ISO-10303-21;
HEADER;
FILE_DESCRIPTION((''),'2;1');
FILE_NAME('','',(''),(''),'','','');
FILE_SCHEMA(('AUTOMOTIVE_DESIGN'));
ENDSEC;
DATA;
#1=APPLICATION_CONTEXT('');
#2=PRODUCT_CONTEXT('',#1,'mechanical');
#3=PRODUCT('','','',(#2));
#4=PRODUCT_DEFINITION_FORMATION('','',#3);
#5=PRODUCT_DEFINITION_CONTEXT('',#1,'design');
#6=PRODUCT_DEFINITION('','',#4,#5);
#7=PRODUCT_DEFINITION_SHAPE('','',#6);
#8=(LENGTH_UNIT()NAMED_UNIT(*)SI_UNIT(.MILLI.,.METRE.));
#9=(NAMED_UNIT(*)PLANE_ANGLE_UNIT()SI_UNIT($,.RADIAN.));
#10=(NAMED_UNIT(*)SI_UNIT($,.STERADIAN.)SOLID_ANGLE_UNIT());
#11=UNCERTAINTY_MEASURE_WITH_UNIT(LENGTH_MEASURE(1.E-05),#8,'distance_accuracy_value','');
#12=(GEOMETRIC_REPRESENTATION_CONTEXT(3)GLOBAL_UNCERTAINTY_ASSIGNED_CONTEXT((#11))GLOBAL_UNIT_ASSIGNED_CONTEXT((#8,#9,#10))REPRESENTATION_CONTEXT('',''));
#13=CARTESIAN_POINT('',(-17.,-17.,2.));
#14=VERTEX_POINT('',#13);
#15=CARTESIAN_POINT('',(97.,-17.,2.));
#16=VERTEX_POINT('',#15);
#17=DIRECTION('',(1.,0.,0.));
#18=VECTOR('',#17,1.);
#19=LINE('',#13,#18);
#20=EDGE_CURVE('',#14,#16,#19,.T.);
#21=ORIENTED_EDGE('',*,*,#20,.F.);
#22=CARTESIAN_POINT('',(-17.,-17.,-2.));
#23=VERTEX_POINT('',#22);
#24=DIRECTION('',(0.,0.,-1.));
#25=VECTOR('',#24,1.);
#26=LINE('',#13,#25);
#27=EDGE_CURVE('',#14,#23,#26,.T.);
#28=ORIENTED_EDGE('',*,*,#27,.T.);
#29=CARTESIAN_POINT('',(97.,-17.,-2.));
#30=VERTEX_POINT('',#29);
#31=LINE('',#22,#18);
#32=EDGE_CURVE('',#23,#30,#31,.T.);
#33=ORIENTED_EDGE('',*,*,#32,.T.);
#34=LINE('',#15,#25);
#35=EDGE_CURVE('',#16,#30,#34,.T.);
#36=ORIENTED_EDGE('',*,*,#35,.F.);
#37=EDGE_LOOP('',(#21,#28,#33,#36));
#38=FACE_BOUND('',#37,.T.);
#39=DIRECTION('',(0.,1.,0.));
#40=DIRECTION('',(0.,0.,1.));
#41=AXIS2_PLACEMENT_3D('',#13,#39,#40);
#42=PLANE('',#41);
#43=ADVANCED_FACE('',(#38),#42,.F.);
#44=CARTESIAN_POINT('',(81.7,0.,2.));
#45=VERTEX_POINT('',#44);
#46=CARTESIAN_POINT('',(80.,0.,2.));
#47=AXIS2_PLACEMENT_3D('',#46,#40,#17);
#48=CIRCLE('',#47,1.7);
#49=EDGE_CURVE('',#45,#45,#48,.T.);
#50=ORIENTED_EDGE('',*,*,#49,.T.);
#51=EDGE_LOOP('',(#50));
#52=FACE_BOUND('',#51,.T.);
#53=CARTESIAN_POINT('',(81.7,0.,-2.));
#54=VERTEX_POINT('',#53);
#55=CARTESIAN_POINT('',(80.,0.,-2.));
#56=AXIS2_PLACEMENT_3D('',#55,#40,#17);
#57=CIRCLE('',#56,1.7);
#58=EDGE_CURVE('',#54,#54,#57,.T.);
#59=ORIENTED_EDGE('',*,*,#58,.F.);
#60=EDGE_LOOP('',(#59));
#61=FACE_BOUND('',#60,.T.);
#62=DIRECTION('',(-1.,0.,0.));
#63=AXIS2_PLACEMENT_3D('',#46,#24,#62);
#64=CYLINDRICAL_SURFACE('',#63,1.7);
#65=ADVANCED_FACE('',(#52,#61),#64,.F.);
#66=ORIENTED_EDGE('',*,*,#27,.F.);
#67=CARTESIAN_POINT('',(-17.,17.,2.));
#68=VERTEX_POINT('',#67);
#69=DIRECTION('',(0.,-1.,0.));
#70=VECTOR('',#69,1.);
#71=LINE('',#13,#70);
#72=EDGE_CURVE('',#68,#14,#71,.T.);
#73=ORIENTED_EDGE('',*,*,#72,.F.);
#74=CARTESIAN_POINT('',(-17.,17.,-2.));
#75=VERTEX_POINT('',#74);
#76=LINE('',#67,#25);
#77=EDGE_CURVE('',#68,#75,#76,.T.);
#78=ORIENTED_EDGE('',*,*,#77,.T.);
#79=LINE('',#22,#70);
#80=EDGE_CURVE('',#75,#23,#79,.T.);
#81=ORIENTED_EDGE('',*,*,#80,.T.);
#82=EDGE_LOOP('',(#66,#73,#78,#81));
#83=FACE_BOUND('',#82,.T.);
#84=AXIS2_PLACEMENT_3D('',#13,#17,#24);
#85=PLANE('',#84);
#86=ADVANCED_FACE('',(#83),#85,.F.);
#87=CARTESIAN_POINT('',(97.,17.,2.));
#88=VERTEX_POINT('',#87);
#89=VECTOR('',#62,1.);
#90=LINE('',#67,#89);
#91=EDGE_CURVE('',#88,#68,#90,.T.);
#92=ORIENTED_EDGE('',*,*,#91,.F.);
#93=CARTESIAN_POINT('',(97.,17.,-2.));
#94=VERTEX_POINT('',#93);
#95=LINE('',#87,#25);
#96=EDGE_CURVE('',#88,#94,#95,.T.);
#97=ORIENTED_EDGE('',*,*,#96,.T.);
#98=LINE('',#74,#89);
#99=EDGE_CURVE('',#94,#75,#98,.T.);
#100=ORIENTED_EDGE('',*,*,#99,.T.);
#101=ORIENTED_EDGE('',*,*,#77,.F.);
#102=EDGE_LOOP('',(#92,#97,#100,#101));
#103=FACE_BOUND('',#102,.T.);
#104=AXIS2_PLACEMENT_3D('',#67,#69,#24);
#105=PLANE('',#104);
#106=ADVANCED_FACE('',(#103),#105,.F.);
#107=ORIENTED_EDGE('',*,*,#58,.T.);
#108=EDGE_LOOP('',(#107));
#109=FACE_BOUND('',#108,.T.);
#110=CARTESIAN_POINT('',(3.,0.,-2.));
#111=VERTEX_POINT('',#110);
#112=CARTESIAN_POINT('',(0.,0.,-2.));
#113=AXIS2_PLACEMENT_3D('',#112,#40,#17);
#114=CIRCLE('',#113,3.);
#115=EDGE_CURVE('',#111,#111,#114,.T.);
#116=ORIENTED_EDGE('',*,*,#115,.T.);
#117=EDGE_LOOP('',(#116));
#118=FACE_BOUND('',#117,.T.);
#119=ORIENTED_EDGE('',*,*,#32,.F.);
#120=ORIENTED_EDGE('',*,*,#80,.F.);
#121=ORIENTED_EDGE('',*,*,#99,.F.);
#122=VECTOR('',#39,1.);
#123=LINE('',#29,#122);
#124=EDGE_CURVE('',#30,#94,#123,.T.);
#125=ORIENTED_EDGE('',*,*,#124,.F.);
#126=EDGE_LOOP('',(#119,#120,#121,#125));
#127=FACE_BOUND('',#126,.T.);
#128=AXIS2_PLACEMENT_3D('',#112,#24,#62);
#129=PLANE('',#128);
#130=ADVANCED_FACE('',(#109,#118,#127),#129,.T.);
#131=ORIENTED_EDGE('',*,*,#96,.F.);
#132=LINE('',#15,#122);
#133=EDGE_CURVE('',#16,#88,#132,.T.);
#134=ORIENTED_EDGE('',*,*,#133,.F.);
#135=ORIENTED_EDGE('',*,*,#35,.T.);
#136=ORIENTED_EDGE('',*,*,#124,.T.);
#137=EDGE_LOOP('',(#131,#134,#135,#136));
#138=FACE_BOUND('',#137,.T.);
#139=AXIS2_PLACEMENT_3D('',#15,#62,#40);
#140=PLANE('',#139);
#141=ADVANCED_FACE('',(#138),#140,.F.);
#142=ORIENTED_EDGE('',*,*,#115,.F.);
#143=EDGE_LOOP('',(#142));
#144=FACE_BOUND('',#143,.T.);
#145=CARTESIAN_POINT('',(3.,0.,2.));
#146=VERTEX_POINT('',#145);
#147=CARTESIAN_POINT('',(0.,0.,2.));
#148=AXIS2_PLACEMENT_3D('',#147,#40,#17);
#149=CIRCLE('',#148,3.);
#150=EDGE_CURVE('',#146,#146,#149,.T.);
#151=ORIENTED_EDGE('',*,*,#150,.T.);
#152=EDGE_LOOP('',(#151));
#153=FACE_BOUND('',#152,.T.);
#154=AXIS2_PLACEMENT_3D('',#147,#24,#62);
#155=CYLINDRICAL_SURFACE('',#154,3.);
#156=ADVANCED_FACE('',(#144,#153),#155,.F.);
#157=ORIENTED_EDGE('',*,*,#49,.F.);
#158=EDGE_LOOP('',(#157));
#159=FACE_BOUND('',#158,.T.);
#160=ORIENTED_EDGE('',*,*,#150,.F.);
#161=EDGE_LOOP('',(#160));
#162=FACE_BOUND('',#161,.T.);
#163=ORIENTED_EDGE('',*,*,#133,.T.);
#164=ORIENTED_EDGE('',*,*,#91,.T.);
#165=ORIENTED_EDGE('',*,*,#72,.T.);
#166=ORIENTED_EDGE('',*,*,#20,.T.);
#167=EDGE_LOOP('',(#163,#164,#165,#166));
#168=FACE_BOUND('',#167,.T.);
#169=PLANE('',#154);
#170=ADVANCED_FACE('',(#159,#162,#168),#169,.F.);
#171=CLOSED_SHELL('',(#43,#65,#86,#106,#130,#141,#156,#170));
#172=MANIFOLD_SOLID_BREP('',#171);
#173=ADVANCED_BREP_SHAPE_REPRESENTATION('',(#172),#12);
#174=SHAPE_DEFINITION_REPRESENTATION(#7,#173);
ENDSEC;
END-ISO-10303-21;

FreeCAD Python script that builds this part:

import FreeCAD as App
import Part
import Sketcher
Q = App.Units.Quantity


def add_polygon(sketch, points):
    """Adds a closed chain of lines whose ends are joined by coincident constraints."""
    first, n = sketch.GeometryCount, len(points)
    for a, b in zip(points, points[1:] + points[:1]):
        sketch.addGeometry(Part.LineSegment(App.Vector(*a, 0), App.Vector(*b, 0)), False)
    for i in range(n):
        sketch.addConstraint(Sketcher.Constraint("Coincident", first + i, 2, first + (i + 1) % n, 1))

doc = App.newDocument("Part")
body = doc.addObject("PartDesign::Body", "Body")

# Sketch on XY plane
sketch1 = body.newObject("Sketcher::SketchObject", "Sketch")
sketch1.AttachmentSupport = (doc.getObject("XY_Plane"), [""])
sketch1.MapMode = "FlatFace"
add_polygon(sketch1, [(-17, 17), (-17, -17), (97, -17), (97, 17)])  # lines 0-3
sketch1.addGeometry(Part.Circle(App.Vector(0, 0, 0), App.Vector(0, 0, 1), 3), False)  # 4
sketch1.addGeometry(Part.Circle(App.Vector(80, 0, 0), App.Vector(0, 0, 1), 1.7), False)  # 5
sketch1.addConstraint(Sketcher.Constraint("Vertical", 0))
sketch1.addConstraint(Sketcher.Constraint("Horizontal", 1))
sketch1.addConstraint(Sketcher.Constraint("Vertical", 2))
sketch1.addConstraint(Sketcher.Constraint("Horizontal", 3))
sketch1.addConstraint(Sketcher.Constraint("Coincident", 4, 3, -1, 1))
sketch1.addConstraint(Sketcher.Constraint("PointOnObject", 5, 3, -1))
sketch1.addConstraint(Sketcher.Constraint("Diameter", 4, Q("6 mm")))
sketch1.addConstraint(Sketcher.Constraint("Diameter", 5, Q("3.4 mm")))
sketch1.addConstraint(Sketcher.Constraint("DistanceX", 1, 1, 1, 2, Q("114 mm")))
sketch1.addConstraint(Sketcher.Constraint("DistanceY", 0, 2, 0, 1, Q("34 mm")))
sketch1.addConstraint(Sketcher.Constraint("DistanceX", -1, 1, 5, 3, Q("80 mm")))
sketch1.addConstraint(Sketcher.Constraint("DistanceX", 0, 2, -1, 1, Q("17 mm")))
sketch1.addConstraint(Sketcher.Constraint("DistanceY", 0, 2, -1, 1, Q("17 mm")))
pad1 = body.newObject("PartDesign::Pad", "Pad")
pad1.Profile = sketch1
pad1.Length = 4
pad1.Midplane = True

doc.recompute()
